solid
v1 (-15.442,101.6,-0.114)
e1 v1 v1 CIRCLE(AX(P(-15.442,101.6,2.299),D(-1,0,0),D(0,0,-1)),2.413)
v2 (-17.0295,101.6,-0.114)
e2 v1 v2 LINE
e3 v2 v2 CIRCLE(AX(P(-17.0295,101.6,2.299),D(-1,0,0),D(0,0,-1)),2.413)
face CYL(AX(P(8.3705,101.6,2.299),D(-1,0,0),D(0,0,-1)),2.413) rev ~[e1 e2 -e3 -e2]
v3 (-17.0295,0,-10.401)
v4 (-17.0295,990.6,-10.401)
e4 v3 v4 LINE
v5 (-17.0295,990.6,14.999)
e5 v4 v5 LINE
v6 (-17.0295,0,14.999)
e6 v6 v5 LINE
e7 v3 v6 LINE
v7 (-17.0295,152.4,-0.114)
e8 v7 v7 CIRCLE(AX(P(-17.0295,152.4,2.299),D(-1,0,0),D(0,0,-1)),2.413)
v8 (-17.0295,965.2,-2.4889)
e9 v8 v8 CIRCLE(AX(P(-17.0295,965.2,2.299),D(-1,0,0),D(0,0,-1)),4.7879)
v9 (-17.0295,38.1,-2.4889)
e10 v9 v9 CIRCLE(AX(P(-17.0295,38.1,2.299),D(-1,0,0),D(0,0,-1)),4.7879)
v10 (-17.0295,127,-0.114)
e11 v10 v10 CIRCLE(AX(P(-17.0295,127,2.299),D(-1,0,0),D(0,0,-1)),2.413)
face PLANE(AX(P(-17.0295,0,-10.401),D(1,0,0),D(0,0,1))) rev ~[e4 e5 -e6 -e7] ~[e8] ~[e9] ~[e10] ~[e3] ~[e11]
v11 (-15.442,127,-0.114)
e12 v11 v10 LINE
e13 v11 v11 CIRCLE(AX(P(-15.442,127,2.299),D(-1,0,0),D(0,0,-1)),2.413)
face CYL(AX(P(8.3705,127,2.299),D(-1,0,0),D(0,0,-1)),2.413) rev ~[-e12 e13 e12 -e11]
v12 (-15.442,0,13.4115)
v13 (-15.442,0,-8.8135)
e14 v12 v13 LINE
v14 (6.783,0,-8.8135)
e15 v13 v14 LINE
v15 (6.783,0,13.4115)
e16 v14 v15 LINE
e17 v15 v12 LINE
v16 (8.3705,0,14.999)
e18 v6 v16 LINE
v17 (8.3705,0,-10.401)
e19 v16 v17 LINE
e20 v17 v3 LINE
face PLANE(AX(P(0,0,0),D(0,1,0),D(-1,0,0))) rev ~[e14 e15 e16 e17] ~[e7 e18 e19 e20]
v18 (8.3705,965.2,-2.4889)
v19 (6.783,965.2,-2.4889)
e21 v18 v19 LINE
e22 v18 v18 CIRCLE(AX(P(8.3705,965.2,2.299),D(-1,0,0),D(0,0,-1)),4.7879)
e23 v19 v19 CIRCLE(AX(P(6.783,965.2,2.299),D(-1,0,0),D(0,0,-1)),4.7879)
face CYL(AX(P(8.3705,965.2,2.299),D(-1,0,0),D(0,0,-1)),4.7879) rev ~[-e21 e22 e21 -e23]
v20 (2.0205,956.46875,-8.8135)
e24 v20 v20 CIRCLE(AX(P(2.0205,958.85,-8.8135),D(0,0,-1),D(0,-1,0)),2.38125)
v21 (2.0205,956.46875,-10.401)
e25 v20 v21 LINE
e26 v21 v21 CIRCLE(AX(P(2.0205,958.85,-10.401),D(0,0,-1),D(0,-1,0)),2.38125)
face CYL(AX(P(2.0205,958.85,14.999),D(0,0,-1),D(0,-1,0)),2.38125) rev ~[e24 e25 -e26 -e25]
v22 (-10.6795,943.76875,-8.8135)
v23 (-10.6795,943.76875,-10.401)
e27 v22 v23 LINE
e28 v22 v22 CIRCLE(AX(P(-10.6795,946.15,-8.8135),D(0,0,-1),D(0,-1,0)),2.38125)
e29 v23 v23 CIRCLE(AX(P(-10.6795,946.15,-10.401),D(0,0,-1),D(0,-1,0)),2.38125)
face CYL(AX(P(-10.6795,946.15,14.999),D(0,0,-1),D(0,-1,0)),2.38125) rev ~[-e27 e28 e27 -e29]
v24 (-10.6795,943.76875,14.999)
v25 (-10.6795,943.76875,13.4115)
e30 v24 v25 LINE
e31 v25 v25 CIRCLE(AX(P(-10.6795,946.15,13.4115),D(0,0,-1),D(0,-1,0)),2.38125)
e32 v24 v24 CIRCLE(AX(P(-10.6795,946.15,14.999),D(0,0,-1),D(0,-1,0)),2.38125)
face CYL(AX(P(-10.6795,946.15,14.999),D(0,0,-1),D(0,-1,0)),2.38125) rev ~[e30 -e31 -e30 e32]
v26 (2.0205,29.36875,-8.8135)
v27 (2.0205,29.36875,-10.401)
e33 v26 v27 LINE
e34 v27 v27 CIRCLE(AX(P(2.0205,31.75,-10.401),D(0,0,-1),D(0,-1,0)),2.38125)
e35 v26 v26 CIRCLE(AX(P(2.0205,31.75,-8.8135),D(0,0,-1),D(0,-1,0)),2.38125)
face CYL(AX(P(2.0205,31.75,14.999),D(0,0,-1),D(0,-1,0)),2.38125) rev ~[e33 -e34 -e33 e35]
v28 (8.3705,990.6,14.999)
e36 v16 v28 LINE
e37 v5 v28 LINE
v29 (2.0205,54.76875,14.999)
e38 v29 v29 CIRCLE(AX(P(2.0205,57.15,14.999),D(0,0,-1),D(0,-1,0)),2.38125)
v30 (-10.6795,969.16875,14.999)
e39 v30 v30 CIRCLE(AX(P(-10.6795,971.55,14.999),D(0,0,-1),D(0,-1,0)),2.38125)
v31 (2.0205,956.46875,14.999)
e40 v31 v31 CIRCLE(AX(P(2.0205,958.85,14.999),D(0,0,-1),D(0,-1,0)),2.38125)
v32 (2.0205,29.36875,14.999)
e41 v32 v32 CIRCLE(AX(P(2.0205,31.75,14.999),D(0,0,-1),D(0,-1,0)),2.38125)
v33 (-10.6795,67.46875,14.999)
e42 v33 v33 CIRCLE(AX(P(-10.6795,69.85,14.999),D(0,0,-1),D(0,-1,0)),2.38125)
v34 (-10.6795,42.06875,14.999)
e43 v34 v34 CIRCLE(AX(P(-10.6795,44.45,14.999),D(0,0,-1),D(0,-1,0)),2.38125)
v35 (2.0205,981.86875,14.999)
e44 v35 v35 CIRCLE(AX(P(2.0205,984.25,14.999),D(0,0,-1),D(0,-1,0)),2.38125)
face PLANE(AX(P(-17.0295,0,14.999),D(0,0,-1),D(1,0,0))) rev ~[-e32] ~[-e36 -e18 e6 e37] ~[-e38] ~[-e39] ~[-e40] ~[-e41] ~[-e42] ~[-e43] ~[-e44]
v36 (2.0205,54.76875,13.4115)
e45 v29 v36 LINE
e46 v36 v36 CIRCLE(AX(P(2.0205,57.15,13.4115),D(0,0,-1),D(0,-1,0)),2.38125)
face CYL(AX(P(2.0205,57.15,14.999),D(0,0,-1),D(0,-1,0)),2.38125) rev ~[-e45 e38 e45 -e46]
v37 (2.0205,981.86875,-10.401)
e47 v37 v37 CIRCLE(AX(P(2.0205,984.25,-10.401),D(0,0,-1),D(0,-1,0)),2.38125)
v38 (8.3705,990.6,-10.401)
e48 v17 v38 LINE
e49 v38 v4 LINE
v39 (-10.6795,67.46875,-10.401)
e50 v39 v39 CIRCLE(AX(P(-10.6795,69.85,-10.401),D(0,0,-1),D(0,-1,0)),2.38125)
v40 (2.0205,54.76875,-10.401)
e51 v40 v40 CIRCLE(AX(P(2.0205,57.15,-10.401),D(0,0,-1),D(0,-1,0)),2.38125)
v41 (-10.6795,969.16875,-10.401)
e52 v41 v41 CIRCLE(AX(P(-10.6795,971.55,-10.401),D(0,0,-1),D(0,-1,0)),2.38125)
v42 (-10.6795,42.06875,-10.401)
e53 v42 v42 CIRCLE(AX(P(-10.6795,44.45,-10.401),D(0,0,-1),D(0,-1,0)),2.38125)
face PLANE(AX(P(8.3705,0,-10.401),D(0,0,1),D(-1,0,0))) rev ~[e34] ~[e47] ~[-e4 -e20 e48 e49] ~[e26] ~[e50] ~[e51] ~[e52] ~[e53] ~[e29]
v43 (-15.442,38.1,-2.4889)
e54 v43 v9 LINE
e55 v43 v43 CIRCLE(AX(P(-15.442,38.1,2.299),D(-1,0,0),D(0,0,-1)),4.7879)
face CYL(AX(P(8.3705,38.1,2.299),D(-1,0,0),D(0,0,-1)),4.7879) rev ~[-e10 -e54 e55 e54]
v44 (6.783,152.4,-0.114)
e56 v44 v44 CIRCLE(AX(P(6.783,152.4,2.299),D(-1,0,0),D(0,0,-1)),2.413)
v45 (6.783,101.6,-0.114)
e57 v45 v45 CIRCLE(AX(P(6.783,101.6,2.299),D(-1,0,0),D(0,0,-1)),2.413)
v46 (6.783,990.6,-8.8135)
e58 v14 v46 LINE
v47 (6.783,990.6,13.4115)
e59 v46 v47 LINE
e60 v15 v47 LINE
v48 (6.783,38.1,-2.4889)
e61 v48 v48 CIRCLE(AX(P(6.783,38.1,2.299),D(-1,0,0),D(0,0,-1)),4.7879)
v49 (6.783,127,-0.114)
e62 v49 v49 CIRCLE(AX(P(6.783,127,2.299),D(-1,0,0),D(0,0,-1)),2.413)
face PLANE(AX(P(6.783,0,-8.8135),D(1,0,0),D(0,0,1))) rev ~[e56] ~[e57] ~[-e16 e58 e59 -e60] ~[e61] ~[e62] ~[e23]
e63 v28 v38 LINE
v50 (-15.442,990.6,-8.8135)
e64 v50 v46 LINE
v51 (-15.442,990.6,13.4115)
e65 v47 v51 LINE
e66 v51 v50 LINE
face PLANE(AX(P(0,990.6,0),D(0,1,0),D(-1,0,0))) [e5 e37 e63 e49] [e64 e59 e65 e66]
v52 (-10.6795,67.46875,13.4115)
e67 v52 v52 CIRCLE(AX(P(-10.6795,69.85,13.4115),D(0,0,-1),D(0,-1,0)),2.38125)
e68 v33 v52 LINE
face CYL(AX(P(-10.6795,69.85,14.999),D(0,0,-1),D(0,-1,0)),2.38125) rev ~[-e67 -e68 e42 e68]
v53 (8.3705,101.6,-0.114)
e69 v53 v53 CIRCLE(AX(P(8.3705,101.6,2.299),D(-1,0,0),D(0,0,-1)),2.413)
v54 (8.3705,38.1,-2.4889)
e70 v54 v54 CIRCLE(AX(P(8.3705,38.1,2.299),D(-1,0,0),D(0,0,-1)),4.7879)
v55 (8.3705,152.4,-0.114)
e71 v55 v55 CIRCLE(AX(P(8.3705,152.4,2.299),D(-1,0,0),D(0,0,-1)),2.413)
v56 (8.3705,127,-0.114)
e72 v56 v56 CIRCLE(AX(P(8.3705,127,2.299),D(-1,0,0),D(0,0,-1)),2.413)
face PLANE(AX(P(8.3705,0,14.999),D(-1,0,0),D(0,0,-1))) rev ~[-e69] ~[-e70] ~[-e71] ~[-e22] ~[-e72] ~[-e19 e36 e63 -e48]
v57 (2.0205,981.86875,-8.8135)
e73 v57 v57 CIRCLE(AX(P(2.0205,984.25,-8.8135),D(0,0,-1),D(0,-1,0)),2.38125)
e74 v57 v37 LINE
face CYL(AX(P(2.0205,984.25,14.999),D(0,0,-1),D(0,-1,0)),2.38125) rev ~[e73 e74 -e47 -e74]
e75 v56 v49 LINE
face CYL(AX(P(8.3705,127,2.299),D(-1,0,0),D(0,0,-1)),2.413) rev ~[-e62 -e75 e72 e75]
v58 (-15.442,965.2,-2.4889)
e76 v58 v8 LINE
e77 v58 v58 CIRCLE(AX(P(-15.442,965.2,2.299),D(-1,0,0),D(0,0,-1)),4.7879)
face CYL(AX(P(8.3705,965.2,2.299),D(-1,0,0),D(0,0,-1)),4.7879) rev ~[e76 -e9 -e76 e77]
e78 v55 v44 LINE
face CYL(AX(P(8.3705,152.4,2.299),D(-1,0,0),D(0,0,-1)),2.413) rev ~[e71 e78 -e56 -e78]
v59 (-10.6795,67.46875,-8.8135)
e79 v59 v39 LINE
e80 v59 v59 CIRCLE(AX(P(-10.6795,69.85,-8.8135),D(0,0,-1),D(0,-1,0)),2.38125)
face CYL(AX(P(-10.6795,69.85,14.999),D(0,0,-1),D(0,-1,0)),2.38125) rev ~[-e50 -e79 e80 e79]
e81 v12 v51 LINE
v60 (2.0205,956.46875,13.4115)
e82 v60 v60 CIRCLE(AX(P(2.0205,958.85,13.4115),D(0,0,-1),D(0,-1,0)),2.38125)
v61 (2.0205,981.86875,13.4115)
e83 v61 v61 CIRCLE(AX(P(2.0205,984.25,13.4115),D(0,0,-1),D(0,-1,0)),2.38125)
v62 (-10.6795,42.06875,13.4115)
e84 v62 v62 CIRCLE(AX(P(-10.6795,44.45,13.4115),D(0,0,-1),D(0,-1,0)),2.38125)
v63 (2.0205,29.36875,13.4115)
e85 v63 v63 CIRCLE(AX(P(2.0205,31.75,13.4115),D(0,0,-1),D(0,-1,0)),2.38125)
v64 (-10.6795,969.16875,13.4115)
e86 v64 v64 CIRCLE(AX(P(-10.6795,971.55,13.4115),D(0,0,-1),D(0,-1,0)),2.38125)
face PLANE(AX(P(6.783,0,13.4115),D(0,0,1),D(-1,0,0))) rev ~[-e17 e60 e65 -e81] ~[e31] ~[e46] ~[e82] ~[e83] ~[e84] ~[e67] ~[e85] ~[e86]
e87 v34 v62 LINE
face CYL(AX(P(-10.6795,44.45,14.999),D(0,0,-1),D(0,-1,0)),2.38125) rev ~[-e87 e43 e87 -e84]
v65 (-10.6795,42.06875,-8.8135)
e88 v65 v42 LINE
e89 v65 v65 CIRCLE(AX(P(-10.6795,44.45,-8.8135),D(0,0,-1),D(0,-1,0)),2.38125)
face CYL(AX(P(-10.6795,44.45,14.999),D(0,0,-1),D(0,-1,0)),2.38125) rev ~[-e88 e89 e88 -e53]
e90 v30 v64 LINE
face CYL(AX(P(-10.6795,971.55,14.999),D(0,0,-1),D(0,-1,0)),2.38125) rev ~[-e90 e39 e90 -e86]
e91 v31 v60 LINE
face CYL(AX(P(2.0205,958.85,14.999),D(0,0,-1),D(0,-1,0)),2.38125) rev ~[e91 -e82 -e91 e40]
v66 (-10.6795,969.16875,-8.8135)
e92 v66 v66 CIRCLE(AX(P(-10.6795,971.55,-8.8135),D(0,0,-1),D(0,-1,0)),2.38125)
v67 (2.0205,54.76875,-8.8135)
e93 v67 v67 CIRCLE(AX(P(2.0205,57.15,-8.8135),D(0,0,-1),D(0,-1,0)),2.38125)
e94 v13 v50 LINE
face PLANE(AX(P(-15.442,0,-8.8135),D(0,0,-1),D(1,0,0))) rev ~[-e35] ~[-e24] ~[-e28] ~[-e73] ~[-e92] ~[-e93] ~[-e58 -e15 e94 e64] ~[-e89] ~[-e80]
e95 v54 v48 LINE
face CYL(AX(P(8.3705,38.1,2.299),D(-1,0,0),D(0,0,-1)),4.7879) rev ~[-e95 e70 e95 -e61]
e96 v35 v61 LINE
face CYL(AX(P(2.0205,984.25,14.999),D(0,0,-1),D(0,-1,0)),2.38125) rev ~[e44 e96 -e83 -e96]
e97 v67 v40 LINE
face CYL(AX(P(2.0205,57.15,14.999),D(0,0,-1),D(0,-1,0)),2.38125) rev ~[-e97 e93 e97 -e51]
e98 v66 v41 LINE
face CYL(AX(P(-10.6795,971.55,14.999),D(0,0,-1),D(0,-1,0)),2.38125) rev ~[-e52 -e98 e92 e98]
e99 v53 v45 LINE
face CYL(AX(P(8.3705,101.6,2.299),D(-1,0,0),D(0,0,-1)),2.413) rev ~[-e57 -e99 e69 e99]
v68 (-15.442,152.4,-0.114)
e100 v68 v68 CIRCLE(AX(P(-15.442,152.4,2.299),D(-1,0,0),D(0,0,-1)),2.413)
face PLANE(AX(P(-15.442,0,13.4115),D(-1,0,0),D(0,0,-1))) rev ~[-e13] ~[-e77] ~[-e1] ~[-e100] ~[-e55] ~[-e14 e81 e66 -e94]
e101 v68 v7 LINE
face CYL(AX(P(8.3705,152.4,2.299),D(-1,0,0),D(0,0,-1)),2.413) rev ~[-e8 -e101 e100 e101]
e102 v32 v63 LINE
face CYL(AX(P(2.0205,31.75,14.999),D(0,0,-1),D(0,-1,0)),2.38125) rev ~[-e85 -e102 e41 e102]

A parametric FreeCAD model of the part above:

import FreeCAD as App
import Part
import Sketcher
from FreeCAD import Vector
Q = App.Units.Quantity

doc = App.newDocument("Part")
body = doc.addObject("PartDesign::Body", "Body")

sketch1 = doc.addObject("Sketcher::SketchObject", "Sketch")
body.addObject(sketch1)
sketch1.AttachmentSupport = (doc.XZ_Plane, [""])
sketch1.MapMode = "FlatFace"
sketch1.addGeometry([
    Part.LineSegment(Vector(-17, -10, 0), Vector(-17, 15, 0)),
    Part.LineSegment(Vector(-17, 15, 0), Vector(8, 15, 0)),
    Part.LineSegment(Vector(8, 15, 0), Vector(8, -10, 0)),
    Part.LineSegment(Vector(8, -10, 0), Vector(-17, -10, 0)),
    Part.LineSegment(Vector(-15, 13, 0), Vector(-15, -9, 0)),
    Part.LineSegment(Vector(-15, -9, 0), Vector(7, -9, 0)),
    Part.LineSegment(Vector(7, -9, 0), Vector(7, 13, 0)),
    Part.LineSegment(Vector(7, 13, 0), Vector(-15, 13, 0)),
], False)
sketch1.addConstraint([
    Sketcher.Constraint("Coincident", 0, 2, 1, 1),
    Sketcher.Constraint("Coincident", 1, 2, 2, 1),
    Sketcher.Constraint("Coincident", 2, 2, 3, 1),
    Sketcher.Constraint("Coincident", 3, 2, 0, 1),
    Sketcher.Constraint("Coincident", 4, 2, 5, 1),
    Sketcher.Constraint("Coincident", 5, 2, 6, 1),
    Sketcher.Constraint("Coincident", 6, 2, 7, 1),
    Sketcher.Constraint("Coincident", 7, 2, 4, 1),
    Sketcher.Constraint("Vertical", 0),
    Sketcher.Constraint("Horizontal", 1),
    Sketcher.Constraint("Vertical", 2),
    Sketcher.Constraint("Horizontal", 3),
    Sketcher.Constraint("Vertical", 4),
    Sketcher.Constraint("Horizontal", 5),
    Sketcher.Constraint("Vertical", 6),
    Sketcher.Constraint("Horizontal", 7),
    Sketcher.Constraint("Equal", 3, 0),
    Sketcher.Constraint("Equal", 7, 4),
    Sketcher.Constraint("DistanceX", 1, 1, 1, 2, Q("1 in")),
    Sketcher.Constraint("DistanceX", 3, 2, 4, 2, Q("0.0625 in")),
    Sketcher.Constraint("DistanceY", 3, 2, 4, 2, Q("0.0625 in")),
    Sketcher.Constraint("DistanceX", 5, 2, 2, 2, Q("0.0625 in")),
    Sketcher.Constraint("DistanceY", 4, 2, -1, 1, Q("0.347 in")),
    Sketcher.Constraint("DistanceX", 0, 2, -1, 1, Q("17.0295 mm")),
])
pad1 = doc.addObject("PartDesign::Pad", "Pad")
body.addObject(pad1)
pad1.Profile = sketch1
pad1.Length = Q("39 in")
pad1.Reversed = True

sketch2 = doc.addObject("Sketcher::SketchObject", "Sketch001")
body.addObject(sketch2)
sketch2.AttachmentSupport = (doc.YZ_Plane, [""])
sketch2.MapMode = "FlatFace"
sketch2.AttachmentOffset = App.Placement(Vector(0, 0, 8.3705), App.Rotation())
sketch2.addGeometry(Part.Circle(Vector(38.1, 2.3, 0), Vector(0, 0, 1), 4.8), False)
sketch2.addConstraint([
    Sketcher.Constraint("Diameter", 0, Q("0.377 in")),
    Sketcher.Constraint("DistanceX", -1, 1, 0, 3, Q("1.5 in")),
    Sketcher.Constraint("DistanceY", -1, 1, 0, 3, Q("0.0905 in")),
])
doc.recompute()
hole = doc.addObject("PartDesign::Hole", "Hole")
body.addObject(hole)
hole.Profile = sketch2
hole.ThreadType = "None"
hole.Diameter = Q("0.377 in")
hole.DepthType = "Dimension"
hole.Depth = Q("1 in")
hole.DrillPoint = "Angled"
hole.DrillPointAngle = 118

sketch3 = doc.addObject("Sketcher::SketchObject", "Sketch002")
body.addObject(sketch3)
sketch3.AttachmentSupport = (doc.YZ_Plane, [""])
sketch3.MapMode = "FlatFace"
sketch3.AttachmentOffset = App.Placement(Vector(0, 0, 8.3705), App.Rotation())
sketch3.addGeometry(Part.Circle(Vector(965.2, 2.3, 0), Vector(0, 0, 1), 4.8), False)
sketch3.addConstraint([
    Sketcher.Constraint("Diameter", 0, Q("0.377 in")),
    Sketcher.Constraint("DistanceX", -1, 1, 0, 3, Q("38 in")),
    Sketcher.Constraint("DistanceY", -1, 1, 0, 3, Q("0.0905 in")),
])
doc.recompute()
hole2 = doc.addObject("PartDesign::Hole", "Hole001")
body.addObject(hole2)
hole2.Profile = sketch3
hole2.ThreadType = "None"
hole2.Diameter = Q("0.377 in")
hole2.DepthType = "Dimension"
hole2.Depth = Q("1 in")
hole2.DrillPoint = "Angled"
hole2.DrillPointAngle = 118

sketch4 = doc.addObject("Sketcher::SketchObject", "Sketch003")
body.addObject(sketch4)
sketch4.AttachmentSupport = (doc.YZ_Plane, [""])
sketch4.MapMode = "FlatFace"
sketch4.AttachmentOffset = App.Placement(Vector(0, 0, 8.3705), App.Rotation())
sketch4.addGeometry([
    Part.Circle(Vector(101.6, 2.3, 0), Vector(0, 0, 1), 2.4),
    Part.Circle(Vector(127, 2.3, 0), Vector(0, 0, 1), 2.4),
    Part.Circle(Vector(152.4, 2.3, 0), Vector(0, 0, 1), 2.4),
], False)
sketch4.addConstraint([
    Sketcher.Constraint("Equal", 0, 1),
    Sketcher.Constraint("Equal", 1, 2),
    Sketcher.Constraint("Horizontal", 0, 3, 1, 3),
    Sketcher.Constraint("Horizontal", 1, 3, 2, 3),
    Sketcher.Constraint("Diameter", 0, Q("0.19 in")),
    Sketcher.Constraint("DistanceX", -1, 1, 0, 3, Q("4 in")),
    Sketcher.Constraint("DistanceX", -1, 1, 1, 3, Q("5 in")),
    Sketcher.Constraint("DistanceX", -1, 1, 2, 3, Q("6 in")),
    Sketcher.Constraint("DistanceY", -1, 1, 0, 3, Q("0.0905 in")),
])
doc.recompute()
hole3 = doc.addObject("PartDesign::Hole", "Hole002")
body.addObject(hole3)
hole3.Profile = sketch4
hole3.ThreadType = "None"
hole3.Diameter = Q("0.19 in")
hole3.DepthType = "Dimension"
hole3.Depth = Q("1 in")
hole3.DrillPoint = "Angled"
hole3.DrillPointAngle = 118

sketch5 = doc.addObject("Sketcher::SketchObject", "Sketch004")
body.addObject(sketch5)
sketch5.AttachmentSupport = (doc.XY_Plane, [""])
sketch5.MapMode = "FlatFace"
sketch5.AttachmentOffset = App.Placement(Vector(0, 0, 0.5905118 * 25.4), App.Rotation())
sketch5.addGeometry([
    Part.Circle(Vector(2, 984.2, 0), Vector(0, 0, 1), 2.4),
    Part.Circle(Vector(-10.7, 971.5, 0), Vector(0, 0, 1), 2.4),
    Part.Circle(Vector(2, 958.9, 0), Vector(0, 0, 1), 2.4),
    Part.Circle(Vector(-10.7, 946.1, 0), Vector(0, 0, 1), 2.4),
], False)
sketch5.addConstraint([
    Sketcher.Constraint("Equal", 0, 1),
    Sketcher.Constraint("Equal", 1, 2),
    Sketcher.Constraint("Equal", 2, 3),
    Sketcher.Constraint("Vertical", 0, 3, 2, 3),
    Sketcher.Constraint("Vertical", 1, 3, 3, 3),
    Sketcher.Constraint("Diameter", 0, Q("0.1875 in")),
    Sketcher.Constraint("DistanceY", 2, 3, 0, 3, Q("1 in")),
    Sketcher.Constraint("DistanceY", 3, 3, 1, 3, Q("1 in")),
    Sketcher.Constraint("DistanceX", 1, 3, 0, 3, Q("0.5 in")),
    Sketcher.Constraint("DistanceY", 1, 3, 0, 3, Q("0.5 in")),
    Sketcher.Constraint("DistanceY", -1, 1, 0, 3, Q("38.75 in")),
    Sketcher.Constraint("DistanceX", -1, 1, 0, 3, Q("2.0205 mm")),
])
doc.recompute()
hole4 = doc.addObject("PartDesign::Hole", "Hole003")
body.addObject(hole4)
hole4.Profile = sketch5
hole4.ThreadType = "None"
hole4.Diameter = Q("0.1875 in")
hole4.DepthType = "Dimension"
hole4.Depth = Q("1 in")
hole4.DrillPoint = "Angled"
hole4.DrillPointAngle = 118

sketch6 = doc.addObject("Sketcher::SketchObject", "Sketch005")
body.addObject(sketch6)
sketch6.AttachmentSupport = (doc.XY_Plane, [""])
sketch6.MapMode = "FlatFace"
sketch6.AttachmentOffset = App.Placement(Vector(0, 0, 0.5905118 * 25.4), App.Rotation())
sketch6.addGeometry([
    Part.Circle(Vector(-10.7, 69.8, 0), Vector(0, 0, 1), 2.4),
    Part.Circle(Vector(2, 57.1, 0), Vector(0, 0, 1), 2.4),
    Part.Circle(Vector(-10.7, 44.5, 0), Vector(0, 0, 1), 2.4),
    Part.Circle(Vector(2, 31.8, 0), Vector(0, 0, 1), 2.4),
], False)
sketch6.addConstraint([
    Sketcher.Constraint("Equal", 0, 1),
    Sketcher.Constraint("Equal", 1, 2),
    Sketcher.Constraint("Equal", 2, 3),
    Sketcher.Constraint("Vertical", 0, 3, 2, 3),
    Sketcher.Constraint("Vertical", 1, 3, 3, 3),
    Sketcher.Constraint("Diameter", 0, Q("0.1875 in")),
    Sketcher.Constraint("DistanceY", 2, 3, 0, 3, Q("1 in")),
    Sketcher.Constraint("DistanceY", 3, 3, 1, 3, Q("1 in")),
    Sketcher.Constraint("DistanceX", 0, 3, 1, 3, Q("0.5 in")),
    Sketcher.Constraint("DistanceY", 1, 3, 0, 3, Q("0.5 in")),
    Sketcher.Constraint("DistanceY", -1, 1, 0, 3, Q("2.75 in")),
    Sketcher.Constraint("DistanceX", 0, 3, -1, 1, Q("10.6795 mm")),
])
doc.recompute()
hole5 = doc.addObject("PartDesign::Hole", "Hole004")
body.addObject(hole5)
hole5.Profile = sketch6
hole5.ThreadType = "None"
hole5.Diameter = Q("0.1875 in")
hole5.DepthType = "Dimension"
hole5.Depth = Q("1 in")
hole5.DrillPoint = "Angled"
hole5.DrillPointAngle = 118

doc.recompute()
